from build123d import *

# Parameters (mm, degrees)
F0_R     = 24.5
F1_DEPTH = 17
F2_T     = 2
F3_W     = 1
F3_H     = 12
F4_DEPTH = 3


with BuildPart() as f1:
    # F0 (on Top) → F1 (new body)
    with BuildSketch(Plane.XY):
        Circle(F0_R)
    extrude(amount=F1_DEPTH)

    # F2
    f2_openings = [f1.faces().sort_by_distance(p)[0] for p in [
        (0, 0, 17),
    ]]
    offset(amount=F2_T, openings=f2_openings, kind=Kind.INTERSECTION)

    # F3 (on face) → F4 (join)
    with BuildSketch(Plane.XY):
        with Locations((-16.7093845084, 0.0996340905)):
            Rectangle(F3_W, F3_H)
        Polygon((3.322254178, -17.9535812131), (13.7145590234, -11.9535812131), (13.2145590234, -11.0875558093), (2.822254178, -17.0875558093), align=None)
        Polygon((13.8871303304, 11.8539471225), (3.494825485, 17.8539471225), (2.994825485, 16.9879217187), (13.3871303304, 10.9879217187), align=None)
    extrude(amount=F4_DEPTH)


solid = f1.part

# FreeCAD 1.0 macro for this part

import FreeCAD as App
import Part
import Sketcher

V = App.Vector
Q = App.Units.Quantity


def faces_at(feature, points):
    """Names of the faces that lie closest to the given points."""
    faces = feature.Shape.Faces
    near = lambda p: min(range(len(faces)), key=lambda i: faces[i].distToShape(Part.Vertex(*p))[0])
    return sorted({f"Face{near(p) + 1}" for p in points})

doc = App.newDocument("Part")
body = doc.addObject("PartDesign::Body", "Body")

# Sketch on XY plane
sketch1 = body.newObject("Sketcher::SketchObject", "Sketch")
sketch1.AttachmentSupport = (doc.getObject("XY_Plane"), [""])
sketch1.MapMode = "FlatFace"
sketch1.addGeometry(Part.Circle(V(0, 0, 0), V(0, 0, 1), 24), False)
sketch1.addConstraint([
    Sketcher.Constraint("Coincident", 0, 3, -1, 1),
    Sketcher.Constraint("Diameter", 0, Q("49 mm")),
])
pad1 = body.newObject("PartDesign::Pad", "Pad")
pad1.Profile = sketch1
pad1.Length = 17
doc.recompute()

thickness = body.newObject("PartDesign::Thickness", "Thickness")
thickness.Base = (pad1, faces_at(pad1, [(0, 0, 17)]))
thickness.Value = 2
thickness.Reversed = False
thickness.Join = "Intersection"

# Sketch on XY plane
sketch2 = body.newObject("Sketcher::SketchObject", "Sketch001")
sketch2.AttachmentSupport = (doc.getObject("XY_Plane"), [""])
sketch2.MapMode = "FlatFace"
sketch2.addGeometry([
    Part.LineSegment(V(-17.2, 6.1, 0), V(-17.2, -5.9, 0)),  # 0
    Part.LineSegment(V(-17.2, -5.9, 0), V(-16.2, -5.9, 0)),  # 1
    Part.LineSegment(V(-16.2, -5.9, 0), V(-16.2, 6.1, 0)),  # 2
    Part.LineSegment(V(-16.2, 6.1, 0), V(-17.2, 6.1, 0)),  # 3
    Part.LineSegment(V(3.3, -18, 0), V(13.7, -12, 0)),  # 4
    Part.LineSegment(V(13.7, -12, 0), V(13.2, -11.1, 0)),  # 5
    Part.LineSegment(V(13.2, -11.1, 0), V(2.8, -17.1, 0)),  # 6
    Part.LineSegment(V(2.8, -17.1, 0), V(3.3, -18, 0)),  # 7
    Part.LineSegment(V(13.9, 11.9, 0), V(3.5, 17.9, 0)),  # 8
    Part.LineSegment(V(3.5, 17.9, 0), V(3, 17, 0)),  # 9
    Part.LineSegment(V(3, 17, 0), V(13.4, 11, 0)),  # 10
    Part.LineSegment(V(13.4, 11, 0), V(13.9, 11.9, 0)),  # 11
], False)
sketch2.addConstraint([
    Sketcher.Constraint("Coincident", 0, 2, 1, 1),
    Sketcher.Constraint("Coincident", 1, 2, 2, 1),
    Sketcher.Constraint("Coincident", 2, 2, 3, 1),
    Sketcher.Constraint("Coincident", 3, 2, 0, 1),
    Sketcher.Constraint("Coincident", 4, 2, 5, 1),
    Sketcher.Constraint("Coincident", 5, 2, 6, 1),
    Sketcher.Constraint("Coincident", 6, 2, 7, 1),
    Sketcher.Constraint("Coincident", 7, 2, 4, 1),
    Sketcher.Constraint("Coincident", 8, 2, 9, 1),
    Sketcher.Constraint("Coincident", 9, 2, 10, 1),
    Sketcher.Constraint("Coincident", 10, 2, 11, 1),
    Sketcher.Constraint("Coincident", 11, 2, 8, 1),
    Sketcher.Constraint("Vertical", 0),
    Sketcher.Constraint("Horizontal", 1),
    Sketcher.Constraint("Vertical", 2),
    Sketcher.Constraint("Horizontal", 3),
    Sketcher.Constraint("Perpendicular", 4, 5),
    Sketcher.Constraint("Perpendicular", 5, 6),
    Sketcher.Constraint("Perpendicular", 6, 7),
    Sketcher.Constraint("Perpendicular", 8, 9),
    Sketcher.Constraint("Perpendicular", 9, 10),
    Sketcher.Constraint("Perpendicular", 10, 11),
    Sketcher.Constraint("Equal", 6, 8),
    Sketcher.Constraint("Equal", 7, 9),
    Sketcher.Constraint("DistanceX", 1, 1, 1, 2, Q("1 mm")),
    Sketcher.Constraint("DistanceY", 0, 2, 0, 1, Q("12 mm")),
    Sketcher.Constraint("Angle", 4, Q("30 deg")),
    Sketcher.Constraint("Angle", 8, Q("150 deg")),
    Sketcher.Constraint("Distance", 4, Q("12 mm")),
    Sketcher.Constraint("Distance", 5, Q("1 mm")),
    Sketcher.Constraint("DistanceX", -1, 1, 4, 2, Q("13.714559 mm")),
    Sketcher.Constraint("DistanceY", 4, 2, -1, 1, Q("11.953581 mm")),
    Sketcher.Constraint("DistanceY", -1, 1, 9, 2, Q("16.987922 mm")),
    Sketcher.Constraint("DistanceX", -1, 1, 10, 2, Q("13.38713 mm")),
    Sketcher.Constraint("DistanceY", 5, 2, 1, 2, Q("5.18719 mm")),
    Sketcher.Constraint("DistanceX", 1, 2, 6, 2, Q("19.031639 mm")),
])
pad2 = body.newObject("PartDesign::Pad", "Pad001")
pad2.Profile = sketch2
pad2.Length = 3

doc.recompute()
